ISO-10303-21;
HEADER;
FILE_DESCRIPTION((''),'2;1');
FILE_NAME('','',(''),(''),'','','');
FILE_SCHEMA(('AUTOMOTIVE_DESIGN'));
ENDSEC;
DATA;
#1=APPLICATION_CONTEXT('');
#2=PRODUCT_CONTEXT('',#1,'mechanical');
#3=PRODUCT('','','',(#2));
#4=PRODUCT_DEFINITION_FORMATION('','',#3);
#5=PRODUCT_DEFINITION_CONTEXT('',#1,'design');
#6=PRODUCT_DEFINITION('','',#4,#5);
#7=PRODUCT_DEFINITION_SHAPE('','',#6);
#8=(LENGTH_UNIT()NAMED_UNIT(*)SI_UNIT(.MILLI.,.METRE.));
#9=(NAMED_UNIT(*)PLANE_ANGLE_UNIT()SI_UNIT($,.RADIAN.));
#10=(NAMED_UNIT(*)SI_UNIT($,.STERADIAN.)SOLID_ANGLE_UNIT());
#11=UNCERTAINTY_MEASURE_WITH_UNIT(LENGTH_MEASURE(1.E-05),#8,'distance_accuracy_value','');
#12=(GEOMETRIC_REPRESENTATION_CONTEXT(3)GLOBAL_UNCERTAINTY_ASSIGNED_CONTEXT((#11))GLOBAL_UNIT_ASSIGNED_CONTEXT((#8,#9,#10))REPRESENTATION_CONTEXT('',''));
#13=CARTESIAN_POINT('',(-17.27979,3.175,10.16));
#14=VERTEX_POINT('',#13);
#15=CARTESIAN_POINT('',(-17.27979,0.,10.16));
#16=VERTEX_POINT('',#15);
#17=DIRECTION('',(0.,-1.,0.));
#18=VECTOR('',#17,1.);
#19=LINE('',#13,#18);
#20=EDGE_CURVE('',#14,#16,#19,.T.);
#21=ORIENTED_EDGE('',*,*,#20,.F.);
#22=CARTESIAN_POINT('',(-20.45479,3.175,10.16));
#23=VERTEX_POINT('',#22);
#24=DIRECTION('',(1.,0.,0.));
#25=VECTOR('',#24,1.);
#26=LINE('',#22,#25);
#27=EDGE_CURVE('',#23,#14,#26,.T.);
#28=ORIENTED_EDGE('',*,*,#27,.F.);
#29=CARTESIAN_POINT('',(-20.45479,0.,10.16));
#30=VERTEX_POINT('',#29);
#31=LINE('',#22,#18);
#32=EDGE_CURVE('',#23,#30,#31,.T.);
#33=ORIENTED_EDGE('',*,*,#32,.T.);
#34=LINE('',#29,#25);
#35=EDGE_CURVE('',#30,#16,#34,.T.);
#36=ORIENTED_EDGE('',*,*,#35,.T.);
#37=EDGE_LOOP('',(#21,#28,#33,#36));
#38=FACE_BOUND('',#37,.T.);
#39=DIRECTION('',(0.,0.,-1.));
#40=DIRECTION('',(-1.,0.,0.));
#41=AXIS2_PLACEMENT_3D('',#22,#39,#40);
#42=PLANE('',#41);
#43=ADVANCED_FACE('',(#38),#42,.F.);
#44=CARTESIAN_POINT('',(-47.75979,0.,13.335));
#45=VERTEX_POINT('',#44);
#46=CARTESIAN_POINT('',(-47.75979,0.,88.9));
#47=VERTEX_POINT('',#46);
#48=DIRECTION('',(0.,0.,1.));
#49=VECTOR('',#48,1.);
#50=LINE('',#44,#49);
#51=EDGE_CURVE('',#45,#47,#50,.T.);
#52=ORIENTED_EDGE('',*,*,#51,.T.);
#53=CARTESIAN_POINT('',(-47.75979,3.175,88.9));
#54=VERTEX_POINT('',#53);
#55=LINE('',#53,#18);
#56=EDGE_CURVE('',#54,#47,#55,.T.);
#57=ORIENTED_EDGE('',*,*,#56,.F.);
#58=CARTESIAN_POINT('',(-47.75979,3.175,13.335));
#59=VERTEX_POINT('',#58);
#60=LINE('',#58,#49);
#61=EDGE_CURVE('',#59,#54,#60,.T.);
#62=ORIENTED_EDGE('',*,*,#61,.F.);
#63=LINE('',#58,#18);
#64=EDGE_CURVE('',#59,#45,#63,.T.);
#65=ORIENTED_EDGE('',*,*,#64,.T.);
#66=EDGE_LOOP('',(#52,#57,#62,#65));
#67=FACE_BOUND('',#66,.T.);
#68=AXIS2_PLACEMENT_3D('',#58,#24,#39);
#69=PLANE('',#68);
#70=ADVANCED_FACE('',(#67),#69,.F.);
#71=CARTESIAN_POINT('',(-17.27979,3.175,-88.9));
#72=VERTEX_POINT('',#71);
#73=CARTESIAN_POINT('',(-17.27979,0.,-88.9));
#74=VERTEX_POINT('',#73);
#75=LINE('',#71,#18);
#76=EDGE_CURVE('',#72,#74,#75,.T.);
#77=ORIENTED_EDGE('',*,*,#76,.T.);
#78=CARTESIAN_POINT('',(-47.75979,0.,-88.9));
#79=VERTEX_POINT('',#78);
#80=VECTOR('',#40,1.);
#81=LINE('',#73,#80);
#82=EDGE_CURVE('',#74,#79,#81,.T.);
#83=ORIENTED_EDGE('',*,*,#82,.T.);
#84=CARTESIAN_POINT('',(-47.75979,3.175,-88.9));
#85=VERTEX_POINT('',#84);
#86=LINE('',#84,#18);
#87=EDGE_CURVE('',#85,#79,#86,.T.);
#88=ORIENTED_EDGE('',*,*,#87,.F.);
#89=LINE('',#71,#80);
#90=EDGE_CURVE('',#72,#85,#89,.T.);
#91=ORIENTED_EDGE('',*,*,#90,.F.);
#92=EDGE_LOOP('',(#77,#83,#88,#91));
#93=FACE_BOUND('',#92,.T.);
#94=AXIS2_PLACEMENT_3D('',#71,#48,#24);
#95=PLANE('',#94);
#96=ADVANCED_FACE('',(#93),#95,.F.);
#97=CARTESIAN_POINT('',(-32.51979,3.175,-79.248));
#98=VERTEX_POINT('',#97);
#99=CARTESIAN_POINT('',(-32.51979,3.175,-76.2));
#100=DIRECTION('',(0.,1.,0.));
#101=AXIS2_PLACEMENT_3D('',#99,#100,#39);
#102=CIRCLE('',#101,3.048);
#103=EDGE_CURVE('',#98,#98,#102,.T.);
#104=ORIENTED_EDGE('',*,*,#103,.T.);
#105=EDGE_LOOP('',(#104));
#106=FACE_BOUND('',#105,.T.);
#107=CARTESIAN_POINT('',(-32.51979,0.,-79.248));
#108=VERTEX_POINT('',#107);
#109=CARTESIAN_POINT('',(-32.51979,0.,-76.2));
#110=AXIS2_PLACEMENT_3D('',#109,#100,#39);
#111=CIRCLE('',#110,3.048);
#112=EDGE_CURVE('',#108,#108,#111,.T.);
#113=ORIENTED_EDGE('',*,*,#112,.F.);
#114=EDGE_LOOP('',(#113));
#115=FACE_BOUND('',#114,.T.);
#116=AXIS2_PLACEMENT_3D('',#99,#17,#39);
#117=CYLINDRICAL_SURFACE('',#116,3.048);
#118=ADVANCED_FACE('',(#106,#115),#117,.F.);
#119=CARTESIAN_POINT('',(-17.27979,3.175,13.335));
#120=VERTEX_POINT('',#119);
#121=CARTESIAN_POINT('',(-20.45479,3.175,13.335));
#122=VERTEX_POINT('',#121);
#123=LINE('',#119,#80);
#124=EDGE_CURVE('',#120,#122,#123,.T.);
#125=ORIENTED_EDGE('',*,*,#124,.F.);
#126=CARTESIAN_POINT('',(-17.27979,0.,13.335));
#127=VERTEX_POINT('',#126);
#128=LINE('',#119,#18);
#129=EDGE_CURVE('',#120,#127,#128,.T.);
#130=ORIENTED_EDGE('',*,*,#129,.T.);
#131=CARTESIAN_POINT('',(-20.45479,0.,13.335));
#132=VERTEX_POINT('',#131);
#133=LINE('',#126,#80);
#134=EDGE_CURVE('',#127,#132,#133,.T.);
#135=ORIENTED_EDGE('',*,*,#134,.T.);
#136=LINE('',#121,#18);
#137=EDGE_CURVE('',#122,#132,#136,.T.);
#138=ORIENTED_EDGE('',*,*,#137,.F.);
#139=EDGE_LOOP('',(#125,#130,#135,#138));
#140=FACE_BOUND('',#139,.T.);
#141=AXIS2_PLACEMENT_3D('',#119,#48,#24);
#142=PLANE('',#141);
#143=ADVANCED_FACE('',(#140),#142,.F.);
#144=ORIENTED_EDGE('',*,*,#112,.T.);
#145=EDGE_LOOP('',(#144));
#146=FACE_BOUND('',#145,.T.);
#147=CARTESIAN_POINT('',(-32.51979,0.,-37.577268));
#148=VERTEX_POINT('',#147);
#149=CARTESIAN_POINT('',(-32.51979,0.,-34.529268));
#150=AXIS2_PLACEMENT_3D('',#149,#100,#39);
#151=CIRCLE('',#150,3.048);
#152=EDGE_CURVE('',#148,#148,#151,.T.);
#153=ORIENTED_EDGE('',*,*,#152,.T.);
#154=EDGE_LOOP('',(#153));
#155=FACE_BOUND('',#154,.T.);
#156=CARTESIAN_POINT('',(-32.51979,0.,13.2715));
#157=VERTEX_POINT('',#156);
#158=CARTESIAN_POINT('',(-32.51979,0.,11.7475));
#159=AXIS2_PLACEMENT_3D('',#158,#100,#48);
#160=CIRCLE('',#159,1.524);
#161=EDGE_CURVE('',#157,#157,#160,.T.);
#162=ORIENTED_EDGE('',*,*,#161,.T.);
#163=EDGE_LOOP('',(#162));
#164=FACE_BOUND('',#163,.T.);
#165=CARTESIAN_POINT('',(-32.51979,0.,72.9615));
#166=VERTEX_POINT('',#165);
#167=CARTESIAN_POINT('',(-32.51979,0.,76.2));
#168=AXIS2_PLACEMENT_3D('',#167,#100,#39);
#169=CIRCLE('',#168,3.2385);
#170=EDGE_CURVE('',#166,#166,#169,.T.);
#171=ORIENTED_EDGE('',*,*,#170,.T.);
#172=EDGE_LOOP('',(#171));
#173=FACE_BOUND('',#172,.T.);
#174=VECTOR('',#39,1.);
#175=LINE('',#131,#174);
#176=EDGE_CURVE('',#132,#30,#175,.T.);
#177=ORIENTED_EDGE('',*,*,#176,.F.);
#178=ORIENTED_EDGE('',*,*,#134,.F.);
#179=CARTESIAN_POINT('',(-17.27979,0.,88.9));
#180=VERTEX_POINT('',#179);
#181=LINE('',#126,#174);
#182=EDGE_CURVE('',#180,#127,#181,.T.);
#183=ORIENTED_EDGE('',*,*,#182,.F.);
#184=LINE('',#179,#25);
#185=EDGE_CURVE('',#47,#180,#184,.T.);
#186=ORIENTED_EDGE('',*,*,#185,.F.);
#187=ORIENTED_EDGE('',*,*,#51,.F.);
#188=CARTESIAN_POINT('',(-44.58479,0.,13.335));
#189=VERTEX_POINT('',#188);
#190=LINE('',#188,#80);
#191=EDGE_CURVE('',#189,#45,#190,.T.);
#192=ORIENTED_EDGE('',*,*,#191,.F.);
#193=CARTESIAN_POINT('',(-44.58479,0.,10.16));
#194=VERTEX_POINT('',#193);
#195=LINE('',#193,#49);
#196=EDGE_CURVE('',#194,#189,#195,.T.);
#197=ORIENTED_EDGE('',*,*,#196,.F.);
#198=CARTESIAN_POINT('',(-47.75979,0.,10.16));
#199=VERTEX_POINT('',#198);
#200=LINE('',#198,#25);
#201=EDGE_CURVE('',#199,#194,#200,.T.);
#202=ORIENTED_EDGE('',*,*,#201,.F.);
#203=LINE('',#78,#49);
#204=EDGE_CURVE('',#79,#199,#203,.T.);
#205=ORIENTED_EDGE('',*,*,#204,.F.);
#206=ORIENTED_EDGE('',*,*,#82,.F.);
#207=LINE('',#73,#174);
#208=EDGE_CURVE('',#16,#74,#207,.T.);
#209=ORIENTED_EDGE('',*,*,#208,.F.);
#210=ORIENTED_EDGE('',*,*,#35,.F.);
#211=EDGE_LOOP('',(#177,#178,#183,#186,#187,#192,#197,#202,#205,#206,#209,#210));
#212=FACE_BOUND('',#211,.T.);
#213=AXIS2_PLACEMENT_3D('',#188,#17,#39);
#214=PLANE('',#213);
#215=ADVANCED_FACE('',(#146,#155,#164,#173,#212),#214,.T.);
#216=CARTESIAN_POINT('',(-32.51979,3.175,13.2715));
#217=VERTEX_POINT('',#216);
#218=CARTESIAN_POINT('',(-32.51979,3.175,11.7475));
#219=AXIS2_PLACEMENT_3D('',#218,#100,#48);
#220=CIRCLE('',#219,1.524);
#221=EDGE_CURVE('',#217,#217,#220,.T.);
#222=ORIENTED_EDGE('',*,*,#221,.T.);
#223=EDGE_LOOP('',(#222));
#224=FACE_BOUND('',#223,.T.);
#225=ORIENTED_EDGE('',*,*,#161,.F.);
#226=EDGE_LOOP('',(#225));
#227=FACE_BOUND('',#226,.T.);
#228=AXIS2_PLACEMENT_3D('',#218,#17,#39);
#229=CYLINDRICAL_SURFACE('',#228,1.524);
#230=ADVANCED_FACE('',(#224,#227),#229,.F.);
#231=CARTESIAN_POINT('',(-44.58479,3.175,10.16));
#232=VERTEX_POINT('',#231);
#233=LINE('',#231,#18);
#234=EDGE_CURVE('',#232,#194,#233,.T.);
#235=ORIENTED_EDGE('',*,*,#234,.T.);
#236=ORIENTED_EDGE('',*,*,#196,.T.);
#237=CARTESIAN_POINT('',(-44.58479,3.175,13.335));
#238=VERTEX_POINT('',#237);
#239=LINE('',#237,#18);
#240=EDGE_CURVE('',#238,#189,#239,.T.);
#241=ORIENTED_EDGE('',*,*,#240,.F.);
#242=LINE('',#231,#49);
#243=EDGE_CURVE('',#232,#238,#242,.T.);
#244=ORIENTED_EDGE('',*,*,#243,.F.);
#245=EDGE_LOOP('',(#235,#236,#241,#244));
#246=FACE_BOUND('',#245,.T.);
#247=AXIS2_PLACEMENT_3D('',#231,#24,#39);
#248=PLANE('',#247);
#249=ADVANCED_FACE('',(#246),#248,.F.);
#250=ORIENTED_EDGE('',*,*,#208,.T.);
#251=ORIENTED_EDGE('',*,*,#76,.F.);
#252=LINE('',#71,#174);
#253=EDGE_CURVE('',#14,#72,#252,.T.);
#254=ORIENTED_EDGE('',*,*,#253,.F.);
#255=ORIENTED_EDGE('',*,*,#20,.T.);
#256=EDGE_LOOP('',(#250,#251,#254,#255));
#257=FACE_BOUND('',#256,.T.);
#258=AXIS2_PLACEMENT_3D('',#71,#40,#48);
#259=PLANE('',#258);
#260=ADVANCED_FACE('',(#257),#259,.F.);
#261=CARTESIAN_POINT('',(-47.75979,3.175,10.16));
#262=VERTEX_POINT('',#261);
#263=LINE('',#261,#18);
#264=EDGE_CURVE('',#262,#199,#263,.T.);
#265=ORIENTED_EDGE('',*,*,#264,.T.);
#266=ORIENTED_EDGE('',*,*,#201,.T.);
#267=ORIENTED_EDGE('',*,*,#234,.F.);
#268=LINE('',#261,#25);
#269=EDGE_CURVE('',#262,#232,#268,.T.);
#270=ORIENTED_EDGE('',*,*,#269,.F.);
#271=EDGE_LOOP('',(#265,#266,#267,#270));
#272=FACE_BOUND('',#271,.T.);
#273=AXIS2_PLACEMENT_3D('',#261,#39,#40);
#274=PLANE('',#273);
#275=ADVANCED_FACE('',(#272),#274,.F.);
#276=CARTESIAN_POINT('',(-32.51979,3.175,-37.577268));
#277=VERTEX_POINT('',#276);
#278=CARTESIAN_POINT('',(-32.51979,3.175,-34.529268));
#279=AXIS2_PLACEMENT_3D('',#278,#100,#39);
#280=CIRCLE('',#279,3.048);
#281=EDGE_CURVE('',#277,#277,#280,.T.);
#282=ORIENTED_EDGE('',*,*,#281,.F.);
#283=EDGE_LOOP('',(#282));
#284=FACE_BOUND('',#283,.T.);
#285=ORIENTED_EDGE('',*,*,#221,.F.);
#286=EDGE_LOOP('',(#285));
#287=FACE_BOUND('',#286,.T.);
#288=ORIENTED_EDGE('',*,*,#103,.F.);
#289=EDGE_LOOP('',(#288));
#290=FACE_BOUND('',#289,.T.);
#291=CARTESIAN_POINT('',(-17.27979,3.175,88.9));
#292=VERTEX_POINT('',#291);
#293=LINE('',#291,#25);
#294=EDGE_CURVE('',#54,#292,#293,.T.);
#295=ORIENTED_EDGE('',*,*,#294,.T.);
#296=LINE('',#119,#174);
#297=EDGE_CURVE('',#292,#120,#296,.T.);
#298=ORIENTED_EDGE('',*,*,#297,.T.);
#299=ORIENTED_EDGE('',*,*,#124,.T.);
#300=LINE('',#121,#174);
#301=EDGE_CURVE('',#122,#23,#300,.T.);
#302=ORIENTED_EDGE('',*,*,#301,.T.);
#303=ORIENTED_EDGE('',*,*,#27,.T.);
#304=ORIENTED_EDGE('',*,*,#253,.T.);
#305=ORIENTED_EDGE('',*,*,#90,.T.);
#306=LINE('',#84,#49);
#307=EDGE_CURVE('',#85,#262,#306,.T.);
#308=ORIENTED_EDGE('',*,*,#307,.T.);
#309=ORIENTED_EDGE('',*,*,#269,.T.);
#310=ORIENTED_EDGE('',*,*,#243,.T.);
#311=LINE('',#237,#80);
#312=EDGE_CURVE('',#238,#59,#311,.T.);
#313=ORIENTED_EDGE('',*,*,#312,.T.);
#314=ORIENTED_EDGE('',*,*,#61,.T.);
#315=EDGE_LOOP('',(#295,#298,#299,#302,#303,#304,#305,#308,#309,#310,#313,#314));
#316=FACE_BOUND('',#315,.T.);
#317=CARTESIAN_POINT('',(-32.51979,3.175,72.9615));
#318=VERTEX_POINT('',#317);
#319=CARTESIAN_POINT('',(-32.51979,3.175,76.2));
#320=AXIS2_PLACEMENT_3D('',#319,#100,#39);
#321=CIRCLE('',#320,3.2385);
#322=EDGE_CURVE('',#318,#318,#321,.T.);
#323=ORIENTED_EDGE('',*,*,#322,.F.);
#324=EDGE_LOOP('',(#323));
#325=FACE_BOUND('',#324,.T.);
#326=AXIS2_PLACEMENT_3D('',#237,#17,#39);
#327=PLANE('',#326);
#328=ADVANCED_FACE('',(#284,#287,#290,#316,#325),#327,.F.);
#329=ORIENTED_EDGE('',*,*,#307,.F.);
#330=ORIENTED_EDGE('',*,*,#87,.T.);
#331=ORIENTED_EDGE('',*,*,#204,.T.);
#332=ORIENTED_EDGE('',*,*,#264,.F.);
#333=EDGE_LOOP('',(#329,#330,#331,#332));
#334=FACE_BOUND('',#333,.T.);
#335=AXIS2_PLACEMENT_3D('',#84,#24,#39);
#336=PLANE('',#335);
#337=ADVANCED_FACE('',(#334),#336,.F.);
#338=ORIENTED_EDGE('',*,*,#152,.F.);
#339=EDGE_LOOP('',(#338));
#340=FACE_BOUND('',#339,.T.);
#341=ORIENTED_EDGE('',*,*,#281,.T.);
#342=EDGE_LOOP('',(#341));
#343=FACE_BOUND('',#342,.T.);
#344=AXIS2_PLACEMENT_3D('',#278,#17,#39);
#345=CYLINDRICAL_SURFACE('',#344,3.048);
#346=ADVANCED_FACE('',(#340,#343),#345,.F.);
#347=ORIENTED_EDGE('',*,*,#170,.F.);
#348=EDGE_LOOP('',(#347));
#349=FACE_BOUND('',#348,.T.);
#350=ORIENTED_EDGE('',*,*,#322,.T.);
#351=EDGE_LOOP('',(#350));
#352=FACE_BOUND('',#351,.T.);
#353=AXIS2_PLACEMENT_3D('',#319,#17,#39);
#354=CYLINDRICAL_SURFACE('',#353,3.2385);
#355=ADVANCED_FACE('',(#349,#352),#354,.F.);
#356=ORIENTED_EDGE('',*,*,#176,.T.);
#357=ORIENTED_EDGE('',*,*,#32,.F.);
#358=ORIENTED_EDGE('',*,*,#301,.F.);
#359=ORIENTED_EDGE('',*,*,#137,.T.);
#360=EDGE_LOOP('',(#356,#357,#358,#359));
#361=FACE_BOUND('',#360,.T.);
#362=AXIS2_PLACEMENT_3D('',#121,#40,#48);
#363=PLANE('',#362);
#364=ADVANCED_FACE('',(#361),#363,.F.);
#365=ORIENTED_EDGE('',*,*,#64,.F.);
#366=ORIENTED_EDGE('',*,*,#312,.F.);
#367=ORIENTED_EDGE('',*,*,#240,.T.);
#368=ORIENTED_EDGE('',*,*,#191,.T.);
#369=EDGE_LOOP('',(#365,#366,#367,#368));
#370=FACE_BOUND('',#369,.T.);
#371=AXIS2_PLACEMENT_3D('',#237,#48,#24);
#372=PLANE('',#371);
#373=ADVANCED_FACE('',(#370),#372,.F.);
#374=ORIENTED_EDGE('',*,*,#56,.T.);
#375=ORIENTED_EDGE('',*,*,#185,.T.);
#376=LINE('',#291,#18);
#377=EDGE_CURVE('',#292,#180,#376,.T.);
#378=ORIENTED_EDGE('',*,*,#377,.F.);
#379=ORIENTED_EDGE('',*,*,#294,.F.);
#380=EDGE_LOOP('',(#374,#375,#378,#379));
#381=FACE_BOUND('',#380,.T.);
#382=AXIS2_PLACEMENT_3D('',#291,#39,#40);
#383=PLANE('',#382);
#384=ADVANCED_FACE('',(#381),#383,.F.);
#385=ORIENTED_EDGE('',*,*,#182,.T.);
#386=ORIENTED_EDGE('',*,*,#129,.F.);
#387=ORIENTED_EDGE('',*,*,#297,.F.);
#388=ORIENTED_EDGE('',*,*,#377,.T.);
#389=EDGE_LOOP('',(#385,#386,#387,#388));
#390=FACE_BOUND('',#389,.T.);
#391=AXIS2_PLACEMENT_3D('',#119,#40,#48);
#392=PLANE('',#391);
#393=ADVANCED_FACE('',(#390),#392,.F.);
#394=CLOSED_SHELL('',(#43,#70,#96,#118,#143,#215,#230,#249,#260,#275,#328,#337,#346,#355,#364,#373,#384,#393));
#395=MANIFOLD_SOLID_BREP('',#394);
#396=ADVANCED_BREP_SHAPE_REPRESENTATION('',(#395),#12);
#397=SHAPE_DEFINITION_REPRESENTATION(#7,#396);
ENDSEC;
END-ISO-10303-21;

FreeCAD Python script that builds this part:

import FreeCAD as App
import Part
import Sketcher

V = App.Vector
Q = App.Units.Quantity


def add_polygon(sketch, points):
    """Adds a closed chain of lines whose ends are joined by coincident constraints."""
    first, n = sketch.GeometryCount, len(points)
    for a, b in zip(points, points[1:] + points[:1]):
        sketch.addGeometry(Part.LineSegment(App.Vector(*a, 0), App.Vector(*b, 0)), False)
    for i in range(n):
        sketch.addConstraint(Sketcher.Constraint("Coincident", first + i, 2, first + (i + 1) % n, 1))

doc = App.newDocument("Part")
body = doc.addObject("PartDesign::Body", "Body")

sketch1 = doc.addObject("Sketcher::SketchObject", "Sketch")
body.addObject(sketch1)
sketch1.AttachmentSupport = (doc.XZ_Plane, [""])
sketch1.MapMode = "FlatFace"
add_polygon(sketch1, [(-17.3, 10.2), (-17.3, -88.9), (-47.8, -88.9), (-47.8, 10.2), (-44.6, 10.2), (-44.6, 13.3), (-47.8, 13.3), (-47.8, 88.9), (-17.3, 88.9), (-17.3, 13.3), (-20.5, 13.3), (-20.5, 10.2)])
sketch1.addGeometry(Part.Circle(V(-32.5, 76.2, 0), V(0, 0, 1), 3.2), False)
sketch1.addGeometry(Part.Circle(V(-32.5, 11.7, 0), V(0, 0, 1), 1.5), False)
sketch1.addGeometry(Part.Circle(V(-32.5, -34.5, 0), V(0, 0, 1), 3), False)
sketch1.addGeometry(Part.Circle(V(-32.5, -76.2, 0), V(0, 0, 1), 3), False)
sketch1.addConstraint(Sketcher.Constraint("Vertical", 0))
sketch1.addConstraint(Sketcher.Constraint("Horizontal", 1))
sketch1.addConstraint(Sketcher.Constraint("Vertical", 2))
sketch1.addConstraint(Sketcher.Constraint("Horizontal", 3))
sketch1.addConstraint(Sketcher.Constraint("Vertical", 4))
sketch1.addConstraint(Sketcher.Constraint("Horizontal", 5))
sketch1.addConstraint(Sketcher.Constraint("Vertical", 6))
sketch1.addConstraint(Sketcher.Constraint("Horizontal", 7))
sketch1.addConstraint(Sketcher.Constraint("Vertical", 8))
sketch1.addConstraint(Sketcher.Constraint("Horizontal", 9))
sketch1.addConstraint(Sketcher.Constraint("Vertical", 10))
sketch1.addConstraint(Sketcher.Constraint("Horizontal", 11))
sketch1.addConstraint(Sketcher.Constraint("Equal", 14, 15))
sketch1.addConstraint(Sketcher.Constraint("Symmetric", 12, 3, 15, 3, -1))
sketch1.addConstraint(Sketcher.Constraint("Symmetric", 1, 2, 6, 2, -1))
sketch1.addConstraint(Sketcher.Constraint("Horizontal", 5, 2, 8, 2))
sketch1.addConstraint(Sketcher.Constraint("Horizontal", 3, 2, 10, 2))
sketch1.addConstraint(Sketcher.Constraint("Vertical", 12, 3, 13, 3))
sketch1.addConstraint(Sketcher.Constraint("Vertical", 13, 3, 14, 3))
sketch1.addConstraint(Sketcher.Constraint("Vertical", 0, 2, 7, 2))
sketch1.addConstraint(Sketcher.Constraint("Equal", 5, 9))
sketch1.addConstraint(Sketcher.Constraint("Equal", 11, 4))
sketch1.addConstraint(Sketcher.Constraint("Diameter", 13, Q("0.12 in")))
sketch1.addConstraint(Sketcher.Constraint("Diameter", 14, Q("0.24 in")))
sketch1.addConstraint(Sketcher.Constraint("Diameter", 12, Q("0.255 in")))
sketch1.addConstraint(Sketcher.Constraint("DistanceX", 1, 2, 1, 1, Q("1.2 in")))
sketch1.addConstraint(Sketcher.Constraint("DistanceY", 0, 2, 0, 1, Q("3.9 in")))
sketch1.addConstraint(Sketcher.Constraint("DistanceY", -1, 1, 12, 3, Q("3 in")))
sketch1.addConstraint(Sketcher.Constraint("DistanceY", 0, 2, -1, 1, Q("3.5 in")))
sketch1.addConstraint(Sketcher.Constraint("DistanceX", 15, 3, 0, 2, Q("0.6 in")))
sketch1.addConstraint(Sketcher.Constraint("DistanceX", 3, 1, 3, 2, Q("0.125 in")))
sketch1.addConstraint(Sketcher.Constraint("DistanceY", 2, 2, 13, 3, Q("0.0625 in")))
sketch1.addConstraint(Sketcher.Constraint("DistanceX", 12, 3, -1, 1, 32.51979))
sketch1.addConstraint(Sketcher.Constraint("DistanceY", 14, 3, -1, 1, 34.529268))
pad1 = doc.addObject("PartDesign::Pad", "Pad")
body.addObject(pad1)
pad1.Profile = sketch1
pad1.Length = Q("0.125 in")
pad1.Reversed = True

doc.recompute()
